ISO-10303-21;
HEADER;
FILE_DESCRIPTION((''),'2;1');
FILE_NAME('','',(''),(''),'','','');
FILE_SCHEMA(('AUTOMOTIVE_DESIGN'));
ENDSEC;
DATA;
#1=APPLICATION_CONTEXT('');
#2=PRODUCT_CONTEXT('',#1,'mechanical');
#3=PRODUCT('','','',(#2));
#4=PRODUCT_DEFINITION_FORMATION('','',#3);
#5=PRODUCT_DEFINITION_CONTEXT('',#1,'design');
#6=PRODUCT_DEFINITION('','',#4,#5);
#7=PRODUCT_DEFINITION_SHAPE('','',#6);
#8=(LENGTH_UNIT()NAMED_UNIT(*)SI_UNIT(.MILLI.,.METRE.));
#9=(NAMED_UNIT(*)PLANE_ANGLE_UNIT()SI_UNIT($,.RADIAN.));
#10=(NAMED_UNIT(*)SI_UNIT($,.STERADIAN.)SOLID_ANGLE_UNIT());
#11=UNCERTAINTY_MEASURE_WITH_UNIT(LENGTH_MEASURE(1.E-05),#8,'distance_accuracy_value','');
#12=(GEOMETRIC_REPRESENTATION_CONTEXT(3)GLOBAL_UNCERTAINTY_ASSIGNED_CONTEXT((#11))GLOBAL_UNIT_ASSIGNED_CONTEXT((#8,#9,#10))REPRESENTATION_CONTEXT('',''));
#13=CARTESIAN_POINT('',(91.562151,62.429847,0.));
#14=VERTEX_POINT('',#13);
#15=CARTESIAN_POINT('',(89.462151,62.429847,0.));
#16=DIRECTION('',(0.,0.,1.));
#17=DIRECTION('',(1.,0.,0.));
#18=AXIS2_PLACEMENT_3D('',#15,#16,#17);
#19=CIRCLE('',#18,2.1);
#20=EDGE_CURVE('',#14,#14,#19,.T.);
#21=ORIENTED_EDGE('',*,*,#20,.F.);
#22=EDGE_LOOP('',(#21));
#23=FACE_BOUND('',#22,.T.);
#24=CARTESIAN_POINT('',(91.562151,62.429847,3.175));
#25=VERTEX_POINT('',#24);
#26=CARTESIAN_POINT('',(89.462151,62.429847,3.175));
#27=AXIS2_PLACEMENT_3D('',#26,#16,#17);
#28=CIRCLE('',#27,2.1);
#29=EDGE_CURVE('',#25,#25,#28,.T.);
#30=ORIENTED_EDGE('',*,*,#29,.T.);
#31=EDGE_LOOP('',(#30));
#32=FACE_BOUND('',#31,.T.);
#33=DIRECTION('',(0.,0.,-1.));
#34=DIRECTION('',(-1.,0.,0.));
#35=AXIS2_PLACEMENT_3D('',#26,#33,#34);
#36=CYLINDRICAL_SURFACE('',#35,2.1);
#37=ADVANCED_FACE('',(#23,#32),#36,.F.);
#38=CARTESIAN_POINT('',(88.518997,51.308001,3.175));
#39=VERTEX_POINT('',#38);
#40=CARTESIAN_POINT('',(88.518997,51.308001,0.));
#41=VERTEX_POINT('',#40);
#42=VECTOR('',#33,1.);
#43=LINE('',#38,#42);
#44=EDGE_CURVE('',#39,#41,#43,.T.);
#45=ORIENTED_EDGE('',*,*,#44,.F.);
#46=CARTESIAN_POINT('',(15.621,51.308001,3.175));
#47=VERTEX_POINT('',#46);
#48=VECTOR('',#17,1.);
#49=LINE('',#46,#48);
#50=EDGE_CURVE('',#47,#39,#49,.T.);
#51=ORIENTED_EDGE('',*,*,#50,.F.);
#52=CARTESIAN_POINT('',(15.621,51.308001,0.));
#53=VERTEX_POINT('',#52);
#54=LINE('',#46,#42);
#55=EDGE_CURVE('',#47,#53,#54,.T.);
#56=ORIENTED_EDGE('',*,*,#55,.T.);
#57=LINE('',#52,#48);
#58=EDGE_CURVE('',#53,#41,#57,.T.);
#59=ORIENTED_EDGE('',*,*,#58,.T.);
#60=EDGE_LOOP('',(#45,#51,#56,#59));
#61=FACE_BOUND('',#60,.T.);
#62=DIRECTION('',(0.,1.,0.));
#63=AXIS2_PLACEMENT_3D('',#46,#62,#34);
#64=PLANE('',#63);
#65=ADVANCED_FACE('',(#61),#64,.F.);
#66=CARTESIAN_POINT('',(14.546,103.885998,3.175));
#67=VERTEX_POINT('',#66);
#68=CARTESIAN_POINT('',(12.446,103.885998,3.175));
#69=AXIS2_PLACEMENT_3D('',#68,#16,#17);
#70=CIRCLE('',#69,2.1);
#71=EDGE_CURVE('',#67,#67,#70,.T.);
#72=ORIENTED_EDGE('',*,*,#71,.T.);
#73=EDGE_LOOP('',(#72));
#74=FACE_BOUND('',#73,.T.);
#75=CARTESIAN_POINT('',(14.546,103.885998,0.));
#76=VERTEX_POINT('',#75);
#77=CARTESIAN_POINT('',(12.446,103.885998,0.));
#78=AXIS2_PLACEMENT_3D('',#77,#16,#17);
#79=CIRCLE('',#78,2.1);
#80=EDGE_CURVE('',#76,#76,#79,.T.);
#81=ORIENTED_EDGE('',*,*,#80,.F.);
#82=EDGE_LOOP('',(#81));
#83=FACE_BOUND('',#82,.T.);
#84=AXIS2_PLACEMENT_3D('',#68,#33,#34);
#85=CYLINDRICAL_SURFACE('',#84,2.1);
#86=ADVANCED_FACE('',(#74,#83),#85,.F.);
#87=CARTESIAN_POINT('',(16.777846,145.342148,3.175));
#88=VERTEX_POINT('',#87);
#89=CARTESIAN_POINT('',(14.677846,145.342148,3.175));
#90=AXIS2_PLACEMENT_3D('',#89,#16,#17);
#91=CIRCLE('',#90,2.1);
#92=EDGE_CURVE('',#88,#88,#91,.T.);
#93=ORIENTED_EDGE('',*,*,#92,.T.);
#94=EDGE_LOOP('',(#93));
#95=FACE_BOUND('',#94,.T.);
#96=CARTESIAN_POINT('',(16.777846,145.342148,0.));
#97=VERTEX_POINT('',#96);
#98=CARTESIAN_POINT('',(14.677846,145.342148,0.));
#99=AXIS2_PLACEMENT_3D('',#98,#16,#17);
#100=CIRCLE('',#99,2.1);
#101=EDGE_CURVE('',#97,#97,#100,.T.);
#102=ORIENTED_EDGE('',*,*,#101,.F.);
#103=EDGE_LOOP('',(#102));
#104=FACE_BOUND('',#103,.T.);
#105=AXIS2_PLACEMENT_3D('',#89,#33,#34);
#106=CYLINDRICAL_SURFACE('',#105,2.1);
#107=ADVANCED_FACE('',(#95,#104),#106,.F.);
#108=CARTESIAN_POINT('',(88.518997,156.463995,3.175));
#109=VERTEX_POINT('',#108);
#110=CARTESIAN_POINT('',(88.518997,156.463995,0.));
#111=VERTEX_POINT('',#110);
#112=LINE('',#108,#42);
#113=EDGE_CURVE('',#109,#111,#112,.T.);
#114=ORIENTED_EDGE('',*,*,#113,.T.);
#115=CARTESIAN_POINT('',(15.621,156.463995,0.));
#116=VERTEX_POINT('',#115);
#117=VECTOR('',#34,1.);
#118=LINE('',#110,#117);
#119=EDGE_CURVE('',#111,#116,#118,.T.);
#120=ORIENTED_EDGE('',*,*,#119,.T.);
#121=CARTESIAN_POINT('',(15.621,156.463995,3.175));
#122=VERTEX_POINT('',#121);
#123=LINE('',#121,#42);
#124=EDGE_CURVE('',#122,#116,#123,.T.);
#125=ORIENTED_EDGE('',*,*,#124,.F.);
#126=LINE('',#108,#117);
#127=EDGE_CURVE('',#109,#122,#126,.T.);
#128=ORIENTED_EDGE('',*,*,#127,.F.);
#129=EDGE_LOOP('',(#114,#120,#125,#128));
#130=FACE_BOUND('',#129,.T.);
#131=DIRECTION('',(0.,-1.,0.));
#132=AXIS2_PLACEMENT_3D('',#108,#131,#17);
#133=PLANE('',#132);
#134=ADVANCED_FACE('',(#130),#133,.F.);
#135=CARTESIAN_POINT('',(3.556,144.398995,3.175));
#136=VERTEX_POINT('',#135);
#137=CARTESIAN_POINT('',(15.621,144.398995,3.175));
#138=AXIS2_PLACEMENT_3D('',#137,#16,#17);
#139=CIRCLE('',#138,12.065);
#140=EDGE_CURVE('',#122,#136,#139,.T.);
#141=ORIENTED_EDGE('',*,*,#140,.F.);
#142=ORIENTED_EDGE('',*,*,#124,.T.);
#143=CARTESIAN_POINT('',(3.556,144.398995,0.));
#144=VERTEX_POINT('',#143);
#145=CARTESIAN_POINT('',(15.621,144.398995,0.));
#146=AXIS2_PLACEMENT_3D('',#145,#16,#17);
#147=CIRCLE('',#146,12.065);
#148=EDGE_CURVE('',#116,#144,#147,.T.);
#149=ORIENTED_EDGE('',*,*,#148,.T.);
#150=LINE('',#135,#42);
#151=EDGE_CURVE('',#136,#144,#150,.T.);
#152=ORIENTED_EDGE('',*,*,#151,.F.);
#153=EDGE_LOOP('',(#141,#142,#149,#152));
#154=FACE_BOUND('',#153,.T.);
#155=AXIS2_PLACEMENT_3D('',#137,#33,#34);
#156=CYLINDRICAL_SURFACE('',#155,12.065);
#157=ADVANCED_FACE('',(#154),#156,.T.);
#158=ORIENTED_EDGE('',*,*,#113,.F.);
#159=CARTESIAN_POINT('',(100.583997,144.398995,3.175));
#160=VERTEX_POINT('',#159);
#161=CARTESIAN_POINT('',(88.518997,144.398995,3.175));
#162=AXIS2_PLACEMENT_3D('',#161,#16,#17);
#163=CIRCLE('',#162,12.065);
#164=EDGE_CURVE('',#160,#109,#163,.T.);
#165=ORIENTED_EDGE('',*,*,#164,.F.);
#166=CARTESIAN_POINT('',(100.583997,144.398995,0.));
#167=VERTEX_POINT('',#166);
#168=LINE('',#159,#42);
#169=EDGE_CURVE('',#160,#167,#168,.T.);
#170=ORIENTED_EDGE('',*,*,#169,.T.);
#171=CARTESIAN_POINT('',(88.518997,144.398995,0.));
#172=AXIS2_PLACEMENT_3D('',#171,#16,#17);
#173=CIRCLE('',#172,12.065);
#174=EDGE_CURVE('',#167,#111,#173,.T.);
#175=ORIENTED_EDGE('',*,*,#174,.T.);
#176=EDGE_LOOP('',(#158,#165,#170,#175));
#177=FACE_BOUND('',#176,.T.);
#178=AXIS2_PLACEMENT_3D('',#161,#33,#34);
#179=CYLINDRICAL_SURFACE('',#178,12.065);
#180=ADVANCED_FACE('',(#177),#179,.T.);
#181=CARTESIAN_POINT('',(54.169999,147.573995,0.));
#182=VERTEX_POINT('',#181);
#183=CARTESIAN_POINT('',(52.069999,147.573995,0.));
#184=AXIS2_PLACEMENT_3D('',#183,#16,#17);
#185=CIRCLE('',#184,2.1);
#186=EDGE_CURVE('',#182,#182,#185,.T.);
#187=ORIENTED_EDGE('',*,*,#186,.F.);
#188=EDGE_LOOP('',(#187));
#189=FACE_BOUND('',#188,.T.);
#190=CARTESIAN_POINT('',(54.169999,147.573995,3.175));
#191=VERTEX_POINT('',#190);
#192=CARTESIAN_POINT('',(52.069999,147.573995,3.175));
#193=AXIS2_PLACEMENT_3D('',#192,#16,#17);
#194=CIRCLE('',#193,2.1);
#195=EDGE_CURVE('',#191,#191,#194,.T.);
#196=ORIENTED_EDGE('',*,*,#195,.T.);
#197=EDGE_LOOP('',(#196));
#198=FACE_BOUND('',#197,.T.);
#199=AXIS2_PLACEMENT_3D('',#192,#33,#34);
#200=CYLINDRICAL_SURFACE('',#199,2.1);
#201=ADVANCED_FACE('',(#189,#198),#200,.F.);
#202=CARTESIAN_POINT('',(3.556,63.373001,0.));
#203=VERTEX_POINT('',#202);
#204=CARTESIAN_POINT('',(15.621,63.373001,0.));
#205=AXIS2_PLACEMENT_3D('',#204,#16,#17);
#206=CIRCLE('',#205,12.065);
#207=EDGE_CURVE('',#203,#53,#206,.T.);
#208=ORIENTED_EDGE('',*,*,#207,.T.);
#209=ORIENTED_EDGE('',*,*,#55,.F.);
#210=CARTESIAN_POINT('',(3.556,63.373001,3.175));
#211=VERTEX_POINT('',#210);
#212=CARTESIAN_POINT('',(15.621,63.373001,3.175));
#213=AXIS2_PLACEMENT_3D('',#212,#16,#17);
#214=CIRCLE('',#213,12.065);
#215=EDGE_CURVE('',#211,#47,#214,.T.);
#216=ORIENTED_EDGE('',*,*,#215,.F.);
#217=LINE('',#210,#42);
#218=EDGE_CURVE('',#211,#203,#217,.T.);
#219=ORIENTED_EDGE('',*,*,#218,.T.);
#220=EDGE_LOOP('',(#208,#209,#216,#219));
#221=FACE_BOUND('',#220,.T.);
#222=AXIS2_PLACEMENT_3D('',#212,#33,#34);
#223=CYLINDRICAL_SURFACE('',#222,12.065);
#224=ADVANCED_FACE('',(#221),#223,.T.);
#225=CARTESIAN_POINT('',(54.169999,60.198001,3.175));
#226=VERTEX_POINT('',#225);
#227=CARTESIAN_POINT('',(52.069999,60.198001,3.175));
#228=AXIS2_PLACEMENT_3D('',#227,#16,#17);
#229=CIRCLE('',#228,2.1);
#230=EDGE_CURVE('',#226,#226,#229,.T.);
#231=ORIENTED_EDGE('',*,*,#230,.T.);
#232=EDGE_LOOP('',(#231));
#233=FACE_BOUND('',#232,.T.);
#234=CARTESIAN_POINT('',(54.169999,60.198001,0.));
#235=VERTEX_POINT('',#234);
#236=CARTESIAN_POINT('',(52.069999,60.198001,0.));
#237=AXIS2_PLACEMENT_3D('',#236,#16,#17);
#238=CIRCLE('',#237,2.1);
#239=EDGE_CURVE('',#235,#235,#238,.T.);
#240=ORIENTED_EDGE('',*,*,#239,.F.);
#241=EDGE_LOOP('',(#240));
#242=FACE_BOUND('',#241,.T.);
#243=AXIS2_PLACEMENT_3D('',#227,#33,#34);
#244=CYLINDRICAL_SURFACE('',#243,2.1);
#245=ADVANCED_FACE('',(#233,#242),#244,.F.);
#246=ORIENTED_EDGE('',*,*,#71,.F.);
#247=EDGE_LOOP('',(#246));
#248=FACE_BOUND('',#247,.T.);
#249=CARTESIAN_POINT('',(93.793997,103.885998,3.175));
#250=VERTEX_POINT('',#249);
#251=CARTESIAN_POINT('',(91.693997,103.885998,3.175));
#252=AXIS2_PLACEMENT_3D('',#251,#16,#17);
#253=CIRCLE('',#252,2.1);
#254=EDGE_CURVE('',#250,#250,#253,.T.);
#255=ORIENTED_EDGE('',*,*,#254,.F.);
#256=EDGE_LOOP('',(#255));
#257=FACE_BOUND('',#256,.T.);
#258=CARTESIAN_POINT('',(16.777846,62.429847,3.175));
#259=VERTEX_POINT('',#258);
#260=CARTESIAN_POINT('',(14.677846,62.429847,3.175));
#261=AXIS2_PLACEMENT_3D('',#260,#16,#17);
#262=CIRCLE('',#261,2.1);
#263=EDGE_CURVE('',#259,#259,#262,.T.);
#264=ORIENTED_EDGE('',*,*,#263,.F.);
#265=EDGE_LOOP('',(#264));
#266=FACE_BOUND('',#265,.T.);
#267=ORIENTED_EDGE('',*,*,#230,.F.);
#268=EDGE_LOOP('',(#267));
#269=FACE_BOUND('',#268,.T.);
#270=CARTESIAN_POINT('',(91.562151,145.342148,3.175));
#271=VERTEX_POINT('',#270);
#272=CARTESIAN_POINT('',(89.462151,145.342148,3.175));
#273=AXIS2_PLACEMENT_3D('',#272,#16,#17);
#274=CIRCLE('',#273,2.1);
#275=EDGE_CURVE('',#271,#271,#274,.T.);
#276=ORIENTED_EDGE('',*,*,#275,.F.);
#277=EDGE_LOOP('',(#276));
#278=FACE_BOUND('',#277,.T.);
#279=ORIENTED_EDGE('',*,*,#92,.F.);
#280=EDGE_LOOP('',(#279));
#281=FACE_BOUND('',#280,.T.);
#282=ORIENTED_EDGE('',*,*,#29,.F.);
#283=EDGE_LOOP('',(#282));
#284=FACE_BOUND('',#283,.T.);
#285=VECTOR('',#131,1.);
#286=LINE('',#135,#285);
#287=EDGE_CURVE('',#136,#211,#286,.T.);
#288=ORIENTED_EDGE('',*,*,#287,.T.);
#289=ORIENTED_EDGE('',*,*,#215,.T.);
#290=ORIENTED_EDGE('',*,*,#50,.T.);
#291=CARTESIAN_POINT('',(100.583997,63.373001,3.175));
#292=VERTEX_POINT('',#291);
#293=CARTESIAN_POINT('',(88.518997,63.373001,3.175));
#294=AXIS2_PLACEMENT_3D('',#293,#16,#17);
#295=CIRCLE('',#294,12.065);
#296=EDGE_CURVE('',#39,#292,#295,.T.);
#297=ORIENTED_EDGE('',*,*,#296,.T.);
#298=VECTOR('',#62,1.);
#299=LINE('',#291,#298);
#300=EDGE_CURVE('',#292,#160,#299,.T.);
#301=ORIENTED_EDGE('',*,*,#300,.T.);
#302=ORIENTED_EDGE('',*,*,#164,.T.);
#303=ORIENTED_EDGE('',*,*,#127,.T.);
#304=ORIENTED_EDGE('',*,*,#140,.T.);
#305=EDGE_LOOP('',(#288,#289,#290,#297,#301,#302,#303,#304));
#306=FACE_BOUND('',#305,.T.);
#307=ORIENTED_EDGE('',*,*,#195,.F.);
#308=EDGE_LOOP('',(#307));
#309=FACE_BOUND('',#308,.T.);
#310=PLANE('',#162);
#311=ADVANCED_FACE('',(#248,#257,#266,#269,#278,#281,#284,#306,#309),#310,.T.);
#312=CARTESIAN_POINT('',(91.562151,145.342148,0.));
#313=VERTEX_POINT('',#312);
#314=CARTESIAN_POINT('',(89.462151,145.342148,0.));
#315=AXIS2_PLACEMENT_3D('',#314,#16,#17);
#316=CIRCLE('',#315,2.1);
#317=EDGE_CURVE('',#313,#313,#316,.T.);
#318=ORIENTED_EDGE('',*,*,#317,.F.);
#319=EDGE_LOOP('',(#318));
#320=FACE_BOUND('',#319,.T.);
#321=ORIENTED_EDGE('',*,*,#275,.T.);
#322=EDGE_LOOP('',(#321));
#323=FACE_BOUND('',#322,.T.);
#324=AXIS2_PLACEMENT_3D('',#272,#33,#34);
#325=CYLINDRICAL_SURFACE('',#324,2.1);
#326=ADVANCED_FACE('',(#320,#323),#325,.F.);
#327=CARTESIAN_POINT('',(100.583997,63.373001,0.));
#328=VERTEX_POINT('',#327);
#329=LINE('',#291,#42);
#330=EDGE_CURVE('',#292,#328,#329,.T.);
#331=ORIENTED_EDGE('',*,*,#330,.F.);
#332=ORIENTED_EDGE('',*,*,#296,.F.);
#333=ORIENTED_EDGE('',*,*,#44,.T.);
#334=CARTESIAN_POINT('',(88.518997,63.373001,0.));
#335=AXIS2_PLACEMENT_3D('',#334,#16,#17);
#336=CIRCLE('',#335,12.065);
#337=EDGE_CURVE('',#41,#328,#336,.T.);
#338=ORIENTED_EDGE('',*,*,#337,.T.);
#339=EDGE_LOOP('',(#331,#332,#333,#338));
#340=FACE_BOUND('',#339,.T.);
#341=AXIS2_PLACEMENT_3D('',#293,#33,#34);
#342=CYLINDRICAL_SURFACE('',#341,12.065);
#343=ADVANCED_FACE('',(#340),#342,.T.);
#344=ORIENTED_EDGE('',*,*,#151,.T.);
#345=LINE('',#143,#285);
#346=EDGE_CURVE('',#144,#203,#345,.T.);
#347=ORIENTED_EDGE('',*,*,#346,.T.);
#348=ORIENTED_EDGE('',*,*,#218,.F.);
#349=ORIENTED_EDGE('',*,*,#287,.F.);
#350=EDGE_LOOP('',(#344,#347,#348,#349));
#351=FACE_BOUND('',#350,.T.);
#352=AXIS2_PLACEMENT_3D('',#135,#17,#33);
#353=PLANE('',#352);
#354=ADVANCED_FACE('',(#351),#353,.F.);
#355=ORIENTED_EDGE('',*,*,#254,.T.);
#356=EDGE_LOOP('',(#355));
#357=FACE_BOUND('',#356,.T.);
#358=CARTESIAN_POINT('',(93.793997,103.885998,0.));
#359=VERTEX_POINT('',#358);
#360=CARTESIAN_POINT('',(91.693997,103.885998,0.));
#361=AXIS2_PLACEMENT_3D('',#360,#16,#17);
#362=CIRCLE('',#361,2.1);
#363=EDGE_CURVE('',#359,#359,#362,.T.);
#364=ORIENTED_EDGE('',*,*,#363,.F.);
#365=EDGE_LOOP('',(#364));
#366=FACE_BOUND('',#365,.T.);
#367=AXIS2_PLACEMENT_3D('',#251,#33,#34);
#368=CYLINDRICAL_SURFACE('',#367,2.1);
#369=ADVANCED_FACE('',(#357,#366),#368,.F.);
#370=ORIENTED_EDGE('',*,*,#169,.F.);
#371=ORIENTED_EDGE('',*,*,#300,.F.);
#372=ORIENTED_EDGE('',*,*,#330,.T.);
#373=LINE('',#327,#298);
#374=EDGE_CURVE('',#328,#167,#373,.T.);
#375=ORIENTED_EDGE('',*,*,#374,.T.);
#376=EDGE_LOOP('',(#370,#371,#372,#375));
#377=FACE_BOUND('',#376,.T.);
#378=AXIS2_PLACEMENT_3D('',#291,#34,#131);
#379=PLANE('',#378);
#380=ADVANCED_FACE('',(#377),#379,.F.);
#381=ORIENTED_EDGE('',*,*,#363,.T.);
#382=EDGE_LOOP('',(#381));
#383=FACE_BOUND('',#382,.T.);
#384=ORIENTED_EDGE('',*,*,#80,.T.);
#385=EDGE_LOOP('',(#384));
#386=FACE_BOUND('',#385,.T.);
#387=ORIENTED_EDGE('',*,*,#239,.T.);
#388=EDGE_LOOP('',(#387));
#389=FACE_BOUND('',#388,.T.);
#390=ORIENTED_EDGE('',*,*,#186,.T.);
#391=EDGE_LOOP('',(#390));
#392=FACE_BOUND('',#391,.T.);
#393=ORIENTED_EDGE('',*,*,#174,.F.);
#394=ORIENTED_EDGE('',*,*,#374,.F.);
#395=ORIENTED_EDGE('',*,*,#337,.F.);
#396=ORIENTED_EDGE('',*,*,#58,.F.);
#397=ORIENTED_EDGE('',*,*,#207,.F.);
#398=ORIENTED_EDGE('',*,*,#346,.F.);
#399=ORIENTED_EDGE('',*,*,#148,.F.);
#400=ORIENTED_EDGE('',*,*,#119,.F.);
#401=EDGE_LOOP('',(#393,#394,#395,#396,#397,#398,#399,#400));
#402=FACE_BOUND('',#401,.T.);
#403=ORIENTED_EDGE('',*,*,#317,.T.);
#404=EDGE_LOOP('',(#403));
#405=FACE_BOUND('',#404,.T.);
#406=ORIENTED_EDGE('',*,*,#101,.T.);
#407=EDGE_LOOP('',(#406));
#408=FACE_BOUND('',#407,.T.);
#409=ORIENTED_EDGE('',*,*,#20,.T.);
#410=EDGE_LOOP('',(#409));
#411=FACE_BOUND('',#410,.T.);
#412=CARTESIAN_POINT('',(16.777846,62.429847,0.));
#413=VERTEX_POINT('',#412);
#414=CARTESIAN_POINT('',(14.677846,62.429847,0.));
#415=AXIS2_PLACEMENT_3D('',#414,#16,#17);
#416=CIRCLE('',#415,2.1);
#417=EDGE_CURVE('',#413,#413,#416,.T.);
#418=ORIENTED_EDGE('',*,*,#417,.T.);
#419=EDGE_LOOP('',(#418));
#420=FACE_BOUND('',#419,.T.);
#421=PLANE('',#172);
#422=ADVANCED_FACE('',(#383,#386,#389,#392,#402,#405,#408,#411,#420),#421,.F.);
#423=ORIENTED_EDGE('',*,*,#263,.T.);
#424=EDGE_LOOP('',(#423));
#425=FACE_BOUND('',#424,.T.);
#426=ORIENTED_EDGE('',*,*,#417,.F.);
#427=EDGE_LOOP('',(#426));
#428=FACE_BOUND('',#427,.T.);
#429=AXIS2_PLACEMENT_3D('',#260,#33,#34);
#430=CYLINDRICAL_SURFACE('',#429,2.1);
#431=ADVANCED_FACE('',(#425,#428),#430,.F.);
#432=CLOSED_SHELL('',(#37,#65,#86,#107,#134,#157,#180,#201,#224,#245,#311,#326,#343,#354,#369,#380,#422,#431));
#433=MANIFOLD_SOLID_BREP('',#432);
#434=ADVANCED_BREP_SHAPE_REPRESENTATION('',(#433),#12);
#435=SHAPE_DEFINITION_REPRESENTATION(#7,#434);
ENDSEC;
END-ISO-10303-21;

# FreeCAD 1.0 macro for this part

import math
import FreeCAD as App
import Part
import Sketcher
from FreeCAD import Vector
Q = App.Units.Quantity

doc = App.newDocument("Part")
body = doc.addObject("PartDesign::Body", "Body")

# Sketch on XY plane
sketch1 = body.newObject("Sketcher::SketchObject", "Sketch")
sketch1.AttachmentSupport = (doc.getObject("XY_Plane"), [""])
sketch1.MapMode = "FlatFace"
sketch1.addGeometry(Part.LineSegment(Vector(88.5, 156.5, 0), Vector(15.6, 156.5, 0)), False)
sketch1.addGeometry(Part.ArcOfCircle(Part.Circle(Vector(15.6, 144.4, 0), Vector(0, 0, 1), 12.1), math.radians(90), math.radians(180)), False)
sketch1.addGeometry(Part.LineSegment(Vector(3.6, 144.4, 0), Vector(3.6, 63.4, 0)), False)
sketch1.addGeometry(Part.ArcOfCircle(Part.Circle(Vector(15.6, 63.4, 0), Vector(0, 0, 1), 12.1), math.radians(180), math.radians(270)), False)
sketch1.addGeometry(Part.LineSegment(Vector(15.6, 51.3, 0), Vector(88.5, 51.3, 0)), False)
sketch1.addGeometry(Part.ArcOfCircle(Part.Circle(Vector(88.5, 63.4, 0), Vector(0, 0, 1), 12.1), math.radians(-90), math.radians(0)), False)
sketch1.addGeometry(Part.LineSegment(Vector(100.6, 63.4, 0), Vector(100.6, 144.4, 0)), False)
sketch1.addGeometry(Part.ArcOfCircle(Part.Circle(Vector(88.5, 144.4, 0), Vector(0, 0, 1), 12.1), math.radians(0), math.radians(90)), False)
sketch1.addGeometry(Part.Circle(Vector(14.7, 62.4, 0), Vector(0, 0, 1), 2.1), False)
sketch1.addGeometry(Part.Circle(Vector(52.1, 60.2, 0), Vector(0, 0, 1), 2.1), False)
sketch1.addGeometry(Part.Circle(Vector(89.5, 62.4, 0), Vector(0, 0, 1), 2.1), False)
sketch1.addGeometry(Part.Circle(Vector(12.4, 103.9, 0), Vector(0, 0, 1), 2.1), False)
sketch1.addGeometry(Part.Circle(Vector(14.7, 145.3, 0), Vector(0, 0, 1), 2.1), False)
sketch1.addGeometry(Part.Circle(Vector(52.1, 147.6, 0), Vector(0, 0, 1), 2.1), False)
sketch1.addGeometry(Part.Circle(Vector(91.7, 103.9, 0), Vector(0, 0, 1), 2.1), False)
sketch1.addGeometry(Part.Circle(Vector(89.5, 145.3, 0), Vector(0, 0, 1), 2.1), False)
sketch1.addConstraint(Sketcher.Constraint("Tangent", 0, 2, 1, 1))
sketch1.addConstraint(Sketcher.Constraint("Tangent", 1, 2, 2, 1))
sketch1.addConstraint(Sketcher.Constraint("Tangent", 2, 2, 3, 1))
sketch1.addConstraint(Sketcher.Constraint("Tangent", 3, 2, 4, 1))
sketch1.addConstraint(Sketcher.Constraint("Tangent", 4, 2, 5, 1))
sketch1.addConstraint(Sketcher.Constraint("Tangent", 5, 2, 6, 1))
sketch1.addConstraint(Sketcher.Constraint("Tangent", 6, 2, 7, 1))
sketch1.addConstraint(Sketcher.Constraint("Tangent", 7, 2, 0, 1))
sketch1.addConstraint(Sketcher.Constraint("Horizontal", 0))
sketch1.addConstraint(Sketcher.Constraint("Vertical", 2))
sketch1.addConstraint(Sketcher.Constraint("Horizontal", 4))
sketch1.addConstraint(Sketcher.Constraint("Vertical", 6))
sketch1.addConstraint(Sketcher.Constraint("Equal", 1, 3))
sketch1.addConstraint(Sketcher.Constraint("Equal", 3, 5))
sketch1.addConstraint(Sketcher.Constraint("Equal", 5, 7))
sketch1.addConstraint(Sketcher.Constraint("Equal", 8, 9))
sketch1.addConstraint(Sketcher.Constraint("Equal", 9, 10))
sketch1.addConstraint(Sketcher.Constraint("Equal", 10, 11))
sketch1.addConstraint(Sketcher.Constraint("Equal", 11, 12))
sketch1.addConstraint(Sketcher.Constraint("Equal", 12, 13))
sketch1.addConstraint(Sketcher.Constraint("Equal", 13, 14))
sketch1.addConstraint(Sketcher.Constraint("Equal", 14, 15))
sketch1.addConstraint(Sketcher.Constraint("Horizontal", 8, 3, 10, 3))
sketch1.addConstraint(Sketcher.Constraint("Horizontal", 11, 3, 14, 3))
sketch1.addConstraint(Sketcher.Constraint("Horizontal", 12, 3, 15, 3))
sketch1.addConstraint(Sketcher.Constraint("Vertical", 8, 3, 12, 3))
sketch1.addConstraint(Sketcher.Constraint("Vertical", 9, 3, 13, 3))
sketch1.addConstraint(Sketcher.Constraint("Vertical", 10, 3, 15, 3))
sketch1.addConstraint(Sketcher.Constraint("Radius", 1, Q("0.475 in")))
sketch1.addConstraint(Sketcher.Constraint("DistanceX", 0, 2, 0, 1, Q("2.8699999 in")))
sketch1.addConstraint(Sketcher.Constraint("Diameter", 8, Q("4.2 mm")))
sketch1.addConstraint(Sketcher.Constraint("DistanceX", -1, 1, 9, 3, Q("2.05 in")))
sketch1.addConstraint(Sketcher.Constraint("DistanceY", -1, 1, 9, 3, Q("2.37 in")))
sketch1.addConstraint(Sketcher.Constraint("DistanceX", -1, 1, 11, 3, Q("0.49 in")))
sketch1.addConstraint(Sketcher.Constraint("DistanceY", -1, 1, 11, 3, Q("4.0899999 in")))
sketch1.addConstraint(Sketcher.Constraint("DistanceX", -1, 1, 14, 3, Q("3.6099999 in")))
sketch1.addConstraint(Sketcher.Constraint("DistanceX", -1, 1, 1, 2, Q("0.14 in")))
sketch1.addConstraint(Sketcher.Constraint("DistanceY", -1, 1, 3, 2, Q("2.02 in")))
sketch1.addConstraint(Sketcher.Constraint("DistanceY", 11, 3, 13, 3, Q("1.7199999 in")))
sketch1.addConstraint(Sketcher.Constraint("DistanceY", 13, 3, 0, 2, Q("0.35 in")))
sketch1.addConstraint(Sketcher.Constraint("DistanceY", 8, 3, 12, 3, Q("82.912301 mm")))
sketch1.addConstraint(Sketcher.Constraint("DistanceX", -1, 1, 10, 3, Q("89.462151 mm")))
sketch1.addConstraint(Sketcher.Constraint("DistanceY", -1, 1, 12, 3, Q("145.342148 mm")))
sketch1.addConstraint(Sketcher.Constraint("DistanceX", 8, 3, 5, 3, Q("73.841151 mm")))
pad1 = body.newObject("PartDesign::Pad", "Pad")
pad1.Profile = sketch1
pad1.Length = Q("0.125 in")

doc.recompute()
